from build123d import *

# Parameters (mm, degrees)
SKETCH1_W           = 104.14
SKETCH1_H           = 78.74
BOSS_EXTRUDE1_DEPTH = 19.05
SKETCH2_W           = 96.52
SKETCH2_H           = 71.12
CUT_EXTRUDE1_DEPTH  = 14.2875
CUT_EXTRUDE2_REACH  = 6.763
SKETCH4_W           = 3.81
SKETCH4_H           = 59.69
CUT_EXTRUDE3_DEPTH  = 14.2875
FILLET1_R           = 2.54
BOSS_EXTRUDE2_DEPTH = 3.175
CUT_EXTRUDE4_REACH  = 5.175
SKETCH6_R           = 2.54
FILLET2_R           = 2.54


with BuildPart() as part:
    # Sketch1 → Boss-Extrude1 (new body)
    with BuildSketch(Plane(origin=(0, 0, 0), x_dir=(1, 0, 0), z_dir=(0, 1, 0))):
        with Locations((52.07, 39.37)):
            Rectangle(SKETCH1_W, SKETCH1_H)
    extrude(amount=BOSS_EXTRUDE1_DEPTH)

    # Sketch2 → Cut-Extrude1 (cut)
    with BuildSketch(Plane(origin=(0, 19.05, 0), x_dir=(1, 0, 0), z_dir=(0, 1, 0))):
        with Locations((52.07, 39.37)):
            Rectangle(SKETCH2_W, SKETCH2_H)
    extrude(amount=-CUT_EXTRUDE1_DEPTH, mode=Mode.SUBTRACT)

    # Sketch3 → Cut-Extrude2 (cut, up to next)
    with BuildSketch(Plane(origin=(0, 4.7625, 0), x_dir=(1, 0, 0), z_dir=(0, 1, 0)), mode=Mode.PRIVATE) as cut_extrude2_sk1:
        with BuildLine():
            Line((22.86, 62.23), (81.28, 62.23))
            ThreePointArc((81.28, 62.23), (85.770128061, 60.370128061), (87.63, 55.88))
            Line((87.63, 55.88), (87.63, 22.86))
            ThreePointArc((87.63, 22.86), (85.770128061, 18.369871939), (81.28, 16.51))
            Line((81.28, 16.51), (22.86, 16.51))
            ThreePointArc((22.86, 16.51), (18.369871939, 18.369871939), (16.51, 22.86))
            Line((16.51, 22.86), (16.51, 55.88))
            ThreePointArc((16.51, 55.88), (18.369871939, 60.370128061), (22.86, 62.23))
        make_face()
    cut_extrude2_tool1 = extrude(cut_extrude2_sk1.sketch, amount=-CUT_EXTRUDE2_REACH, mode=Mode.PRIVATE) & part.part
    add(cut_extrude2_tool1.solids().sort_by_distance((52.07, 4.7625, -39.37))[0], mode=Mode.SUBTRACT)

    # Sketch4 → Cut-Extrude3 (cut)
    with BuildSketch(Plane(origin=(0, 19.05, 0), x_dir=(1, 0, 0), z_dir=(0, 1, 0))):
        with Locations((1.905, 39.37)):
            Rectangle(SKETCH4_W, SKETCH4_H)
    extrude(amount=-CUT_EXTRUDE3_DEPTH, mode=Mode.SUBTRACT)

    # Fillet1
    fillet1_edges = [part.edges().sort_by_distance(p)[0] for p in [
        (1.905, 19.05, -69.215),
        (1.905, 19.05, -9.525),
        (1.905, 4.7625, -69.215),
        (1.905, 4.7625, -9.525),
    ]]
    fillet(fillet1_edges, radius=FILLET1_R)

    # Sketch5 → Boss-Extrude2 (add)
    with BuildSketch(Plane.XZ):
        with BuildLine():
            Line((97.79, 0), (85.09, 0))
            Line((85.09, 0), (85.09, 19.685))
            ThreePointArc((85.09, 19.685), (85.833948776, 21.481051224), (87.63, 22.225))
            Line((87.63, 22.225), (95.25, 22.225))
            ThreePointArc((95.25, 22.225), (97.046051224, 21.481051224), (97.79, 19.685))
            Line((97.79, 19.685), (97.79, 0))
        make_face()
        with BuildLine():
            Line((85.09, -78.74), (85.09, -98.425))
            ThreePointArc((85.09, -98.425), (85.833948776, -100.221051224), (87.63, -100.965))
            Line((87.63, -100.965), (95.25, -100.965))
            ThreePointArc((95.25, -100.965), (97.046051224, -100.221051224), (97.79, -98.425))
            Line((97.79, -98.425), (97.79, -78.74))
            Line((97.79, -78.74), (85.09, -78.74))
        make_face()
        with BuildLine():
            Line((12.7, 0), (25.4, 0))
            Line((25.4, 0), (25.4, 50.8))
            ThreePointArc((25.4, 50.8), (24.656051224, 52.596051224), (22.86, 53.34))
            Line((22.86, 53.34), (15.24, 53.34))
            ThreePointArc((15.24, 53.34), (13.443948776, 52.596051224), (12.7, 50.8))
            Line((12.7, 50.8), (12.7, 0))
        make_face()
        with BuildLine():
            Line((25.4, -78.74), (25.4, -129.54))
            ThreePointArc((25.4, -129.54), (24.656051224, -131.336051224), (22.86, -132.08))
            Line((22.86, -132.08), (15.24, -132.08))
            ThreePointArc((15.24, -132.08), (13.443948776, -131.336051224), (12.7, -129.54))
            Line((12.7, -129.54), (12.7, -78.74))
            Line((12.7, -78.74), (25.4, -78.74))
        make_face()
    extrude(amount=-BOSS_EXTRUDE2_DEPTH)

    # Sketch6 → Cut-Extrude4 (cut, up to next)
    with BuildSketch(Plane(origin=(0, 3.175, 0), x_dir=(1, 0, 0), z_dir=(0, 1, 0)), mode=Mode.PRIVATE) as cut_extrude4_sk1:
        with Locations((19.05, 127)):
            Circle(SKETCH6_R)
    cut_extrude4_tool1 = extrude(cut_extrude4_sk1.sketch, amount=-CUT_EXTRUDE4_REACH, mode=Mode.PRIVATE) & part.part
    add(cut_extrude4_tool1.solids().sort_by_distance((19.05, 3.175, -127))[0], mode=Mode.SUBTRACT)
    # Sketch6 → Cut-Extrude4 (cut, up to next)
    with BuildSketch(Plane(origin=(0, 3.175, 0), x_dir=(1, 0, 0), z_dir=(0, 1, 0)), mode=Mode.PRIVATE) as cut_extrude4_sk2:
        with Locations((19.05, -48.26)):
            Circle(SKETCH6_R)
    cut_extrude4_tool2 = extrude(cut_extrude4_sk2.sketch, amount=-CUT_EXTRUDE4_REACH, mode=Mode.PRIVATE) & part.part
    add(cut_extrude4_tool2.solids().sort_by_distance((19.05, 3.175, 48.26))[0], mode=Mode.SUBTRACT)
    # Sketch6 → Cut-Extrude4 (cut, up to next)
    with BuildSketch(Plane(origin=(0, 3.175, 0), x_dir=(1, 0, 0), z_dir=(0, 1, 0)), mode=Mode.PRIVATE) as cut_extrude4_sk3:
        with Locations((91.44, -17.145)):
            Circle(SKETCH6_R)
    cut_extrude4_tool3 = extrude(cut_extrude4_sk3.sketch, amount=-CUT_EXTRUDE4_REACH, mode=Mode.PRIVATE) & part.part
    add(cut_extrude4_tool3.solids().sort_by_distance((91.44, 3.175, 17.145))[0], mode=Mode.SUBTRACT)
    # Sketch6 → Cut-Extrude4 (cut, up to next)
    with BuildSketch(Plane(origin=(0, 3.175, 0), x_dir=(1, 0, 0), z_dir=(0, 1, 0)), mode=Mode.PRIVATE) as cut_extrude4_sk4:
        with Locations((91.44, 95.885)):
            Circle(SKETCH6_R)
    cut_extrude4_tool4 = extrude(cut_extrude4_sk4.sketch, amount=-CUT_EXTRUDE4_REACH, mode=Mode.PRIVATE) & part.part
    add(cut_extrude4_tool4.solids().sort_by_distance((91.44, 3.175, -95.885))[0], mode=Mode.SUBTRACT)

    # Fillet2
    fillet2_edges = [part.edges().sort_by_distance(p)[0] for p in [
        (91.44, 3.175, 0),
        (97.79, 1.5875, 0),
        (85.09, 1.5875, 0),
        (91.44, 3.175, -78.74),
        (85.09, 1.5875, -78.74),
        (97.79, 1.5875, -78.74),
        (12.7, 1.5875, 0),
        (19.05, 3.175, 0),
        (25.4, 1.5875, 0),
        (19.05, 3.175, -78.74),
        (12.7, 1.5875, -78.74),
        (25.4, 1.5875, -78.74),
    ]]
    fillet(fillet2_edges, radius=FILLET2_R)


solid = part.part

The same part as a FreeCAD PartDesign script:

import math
import FreeCAD as App
import Part
import Sketcher

V = App.Vector
Q = App.Units.Quantity


def edges_at(feature, points):
    """Names of the edges that pass closest to the given points."""
    edges = feature.Shape.Edges
    near = lambda p: min(range(len(edges)), key=lambda i: edges[i].distToShape(Part.Vertex(*p))[0])
    return sorted({f"Edge{near(p) + 1}" for p in points})


def add_polygon(sketch, points):
    """Adds a closed chain of lines whose ends are joined by coincident constraints."""
    first, n = sketch.GeometryCount, len(points)
    for a, b in zip(points, points[1:] + points[:1]):
        sketch.addGeometry(Part.LineSegment(App.Vector(*a, 0), App.Vector(*b, 0)), False)
    for i in range(n):
        sketch.addConstraint(Sketcher.Constraint("Coincident", first + i, 2, first + (i + 1) % n, 1))

doc = App.newDocument("Part")
body = doc.addObject("PartDesign::Body", "Body")

sketch1 = body.newObject("Sketcher::SketchObject", "Sketch")
sketch1.AttachmentSupport = (doc.getObject("XZ_Plane"), [""])
sketch1.MapMode = "FlatFace"
add_polygon(sketch1, [(0, -78.74), (0, 0), (104.14, 0), (104.14, -78.74)])
sketch1.addConstraint(Sketcher.Constraint("Vertical", 0))
sketch1.addConstraint(Sketcher.Constraint("Horizontal", 1))
sketch1.addConstraint(Sketcher.Constraint("Vertical", 2))
sketch1.addConstraint(Sketcher.Constraint("Horizontal", 3))
sketch1.addConstraint(Sketcher.Constraint("Coincident", 0, 2, -1, 1))
sketch1.addConstraint(Sketcher.Constraint("DistanceX", 1, 1, 1, 2, Q("4.1 in")))
sketch1.addConstraint(Sketcher.Constraint("DistanceY", 0, 1, 0, 2, Q("3.1 in")))
pad1 = body.newObject("PartDesign::Pad", "Pad")
pad1.Profile = sketch1
pad1.Length = Q("0.75 in")
pad1.Reversed = True

sketch2 = body.newObject("Sketcher::SketchObject", "Sketch001")
sketch2.AttachmentSupport = (doc.getObject("XZ_Plane"), [""])
sketch2.MapMode = "FlatFace"
sketch2.AttachmentOffset = App.Placement(V(0, 0, -0.75 * 25.4), App.Rotation())
add_polygon(sketch2, [(3.81, -74.93), (3.81, -3.81), (100.33, -3.81), (100.33, -74.93)])
sketch2.addConstraint(Sketcher.Constraint("Vertical", 0))
sketch2.addConstraint(Sketcher.Constraint("Horizontal", 1))
sketch2.addConstraint(Sketcher.Constraint("Vertical", 2))
sketch2.addConstraint(Sketcher.Constraint("Horizontal", 3))
sketch2.addConstraint(Sketcher.Constraint("DistanceX", 1, 1, 1, 2, Q("3.8 in")))
sketch2.addConstraint(Sketcher.Constraint("DistanceY", 0, 1, 0, 2, Q("2.8 in")))
sketch2.addConstraint(Sketcher.Constraint("DistanceX", -1, 1, 0, 2, Q("0.15 in")))
sketch2.addConstraint(Sketcher.Constraint("DistanceY", 0, 2, -1, 1, Q("0.15 in")))
pocket1 = body.newObject("PartDesign::Pocket", "Pocket")
pocket1.Profile = sketch2
pocket1.Length = Q("0.5625 in")
pocket1.Reversed = True

sketch3 = body.newObject("Sketcher::SketchObject", "Sketch002")
sketch3.AttachmentSupport = (doc.getObject("XZ_Plane"), [""])
sketch3.MapMode = "FlatFace"
sketch3.AttachmentOffset = App.Placement(V(0, 0, -0.1875 * 25.4), App.Rotation())
sketch3.addGeometry(Part.LineSegment(V(81.28, -62.23, 0), V(22.86, -62.23, 0)), False)
sketch3.addGeometry(Part.ArcOfCircle(Part.Circle(V(22.86, -55.88, 0), V(0, 0, 1), 6.35), math.radians(180), math.radians(270)), False)
sketch3.addGeometry(Part.LineSegment(V(16.51, -55.88, 0), V(16.51, -22.86, 0)), False)
sketch3.addGeometry(Part.ArcOfCircle(Part.Circle(V(22.86, -22.86, 0), V(0, 0, 1), 6.35), math.radians(90), math.radians(180)), False)
sketch3.addGeometry(Part.LineSegment(V(22.86, -16.51, 0), V(81.28, -16.51, 0)), False)
sketch3.addGeometry(Part.ArcOfCircle(Part.Circle(V(81.28, -22.86, 0), V(0, 0, 1), 6.35), math.radians(0), math.radians(90)), False)
sketch3.addGeometry(Part.LineSegment(V(87.63, -22.86, 0), V(87.63, -55.88, 0)), False)
sketch3.addGeometry(Part.ArcOfCircle(Part.Circle(V(81.28, -55.88, 0), V(0, 0, 1), 6.35), math.radians(-90), math.radians(0)), False)
sketch3.addConstraint(Sketcher.Constraint("Tangent", 0, 2, 1, 2))
sketch3.addConstraint(Sketcher.Constraint("Tangent", 1, 1, 2, 1))
sketch3.addConstraint(Sketcher.Constraint("Tangent", 2, 2, 3, 2))
sketch3.addConstraint(Sketcher.Constraint("Tangent", 3, 1, 4, 1))
sketch3.addConstraint(Sketcher.Constraint("Tangent", 4, 2, 5, 2))
sketch3.addConstraint(Sketcher.Constraint("Tangent", 5, 1, 6, 1))
sketch3.addConstraint(Sketcher.Constraint("Tangent", 6, 2, 7, 2))
sketch3.addConstraint(Sketcher.Constraint("Tangent", 7, 1, 0, 1))
sketch3.addConstraint(Sketcher.Constraint("Horizontal", 0))
sketch3.addConstraint(Sketcher.Constraint("Vertical", 2))
sketch3.addConstraint(Sketcher.Constraint("Horizontal", 4))
sketch3.addConstraint(Sketcher.Constraint("Vertical", 6))
sketch3.addConstraint(Sketcher.Constraint("Equal", 1, 3))
sketch3.addConstraint(Sketcher.Constraint("Equal", 3, 5))
sketch3.addConstraint(Sketcher.Constraint("Equal", 5, 7))
sketch3.addConstraint(Sketcher.Constraint("Radius", 1, Q("0.25 in")))
sketch3.addConstraint(Sketcher.Constraint("DistanceX", 0, 2, 0, 1, Q("2.3 in")))
sketch3.addConstraint(Sketcher.Constraint("DistanceY", 2, 1, 2, 2, Q("1.3 in")))
sketch3.addConstraint(Sketcher.Constraint("DistanceX", -1, 1, 1, 3, Q("0.9 in")))
sketch3.addConstraint(Sketcher.Constraint("DistanceY", 1, 3, -1, 1, Q("2.2 in")))
pocket2 = body.newObject("PartDesign::Pocket", "Pocket001")
pocket2.Profile = sketch3
pocket2.Type = "UpToFirst"
pocket2.Reversed = True

sketch4 = body.newObject("Sketcher::SketchObject", "Sketch003")
sketch4.AttachmentSupport = (doc.getObject("XZ_Plane"), [""])
sketch4.MapMode = "FlatFace"
sketch4.AttachmentOffset = App.Placement(V(0, 0, -0.75 * 25.4), App.Rotation())
add_polygon(sketch4, [(0, -69.215), (0, -9.525), (3.81, -9.525), (3.81, -69.215)])
sketch4.addConstraint(Sketcher.Constraint("Vertical", 0))
sketch4.addConstraint(Sketcher.Constraint("Horizontal", 1))
sketch4.addConstraint(Sketcher.Constraint("Vertical", 2))
sketch4.addConstraint(Sketcher.Constraint("Horizontal", 3))
sketch4.addConstraint(Sketcher.Constraint("PointOnObject", 0, 2, -2))
sketch4.addConstraint(Sketcher.Constraint("DistanceX", 1, 1, 1, 2, Q("0.15 in")))
sketch4.addConstraint(Sketcher.Constraint("DistanceY", 0, 1, 0, 2, Q("2.35 in")))
sketch4.addConstraint(Sketcher.Constraint("DistanceY", 0, 2, -1, 1, Q("0.375 in")))
pocket3 = body.newObject("PartDesign::Pocket", "Pocket002")
pocket3.Profile = sketch4
pocket3.Length = Q("0.5625 in")
pocket3.Reversed = True
doc.recompute()

fillet = body.newObject("PartDesign::Fillet", "Fillet")
fillet.Base = (pocket3, edges_at(pocket3, [
    (1.905, 19.05, -69.215),
    (1.905, 19.05, -9.525),
    (1.905, 4.763, -69.215),
    (1.905, 4.763, -9.525),
]))
fillet.Radius = Q("0.1 in")

sketch5 = body.newObject("Sketcher::SketchObject", "Sketch004")
sketch5.AttachmentSupport = (doc.getObject("XZ_Plane"), [""])
sketch5.MapMode = "FlatFace"
sketch5.addGeometry(Part.LineSegment(V(85.09, 0, 0), V(97.79, 0, 0)), False)
sketch5.addGeometry(Part.LineSegment(V(97.79, 0, 0), V(97.79, 19.685, 0)), False)
sketch5.addGeometry(Part.ArcOfCircle(Part.Circle(V(95.25, 19.685, 0), V(0, 0, 1), 2.54), math.radians(0), math.radians(90)), False)
sketch5.addGeometry(Part.LineSegment(V(95.25, 22.225, 0), V(87.63, 22.225, 0)), False)
sketch5.addGeometry(Part.ArcOfCircle(Part.Circle(V(87.63, 19.685, 0), V(0, 0, 1), 2.54), math.radians(90), math.radians(180)), False)
sketch5.addGeometry(Part.LineSegment(V(85.09, 19.685, 0), V(85.09, 0, 0)), False)
sketch5.addGeometry(Part.LineSegment(V(85.09, -78.74, 0), V(85.09, -98.425, 0)), False)
sketch5.addGeometry(Part.ArcOfCircle(Part.Circle(V(87.63, -98.425, 0), V(0, 0, 1), 2.54), math.radians(-180), math.radians(-90)), False)
sketch5.addGeometry(Part.LineSegment(V(87.63, -100.965, 0), V(95.25, -100.965, 0)), False)
sketch5.addGeometry(Part.ArcOfCircle(Part.Circle(V(95.25, -98.425, 0), V(0, 0, 1), 2.54), math.radians(-90), math.radians(0)), False)
sketch5.addGeometry(Part.LineSegment(V(97.79, -98.425, 0), V(97.79, -78.74, 0)), False)
sketch5.addGeometry(Part.LineSegment(V(97.79, -78.74, 0), V(85.09, -78.74, 0)), False)
sketch5.addGeometry(Part.LineSegment(V(12.7, 0, 0), V(25.4, 0, 0)), False)
sketch5.addGeometry(Part.LineSegment(V(25.4, 0, 0), V(25.4, 50.8, 0)), False)
sketch5.addGeometry(Part.ArcOfCircle(Part.Circle(V(22.86, 50.8, 0), V(0, 0, 1), 2.54), math.radians(0), math.radians(90)), False)
sketch5.addGeometry(Part.LineSegment(V(22.86, 53.34, 0), V(15.24, 53.34, 0)), False)
sketch5.addGeometry(Part.ArcOfCircle(Part.Circle(V(15.24, 50.8, 0), V(0, 0, 1), 2.54), math.radians(90), math.radians(180)), False)
sketch5.addGeometry(Part.LineSegment(V(12.7, 50.8, 0), V(12.7, 0, 0)), False)
sketch5.addGeometry(Part.LineSegment(V(25.4, -129.54, 0), V(25.4, -78.74, 0)), False)
sketch5.addGeometry(Part.LineSegment(V(25.4, -78.74, 0), V(12.7, -78.74, 0)), False)
sketch5.addGeometry(Part.LineSegment(V(12.7, -78.74, 0), V(12.7, -129.54, 0)), False)
sketch5.addGeometry(Part.ArcOfCircle(Part.Circle(V(15.24, -129.54, 0), V(0, 0, 1), 2.54), math.radians(-180), math.radians(-90)), False)
sketch5.addGeometry(Part.LineSegment(V(15.24, -132.08, 0), V(22.86, -132.08, 0)), False)
sketch5.addGeometry(Part.ArcOfCircle(Part.Circle(V(22.86, -129.54, 0), V(0, 0, 1), 2.54), math.radians(-90), math.radians(0)), False)
sketch5.addConstraint(Sketcher.Constraint("Coincident", 0, 2, 1, 1))
sketch5.addConstraint(Sketcher.Constraint("Tangent", 1, 2, 2, 1))
sketch5.addConstraint(Sketcher.Constraint("Tangent", 2, 2, 3, 1))
sketch5.addConstraint(Sketcher.Constraint("Tangent", 3, 2, 4, 1))
sketch5.addConstraint(Sketcher.Constraint("Tangent", 4, 2, 5, 1))
sketch5.addConstraint(Sketcher.Constraint("Coincident", 5, 2, 0, 1))
sketch5.addConstraint(Sketcher.Constraint("Tangent", 6, 2, 7, 1))
sketch5.addConstraint(Sketcher.Constraint("Tangent", 7, 2, 8, 1))
sketch5.addConstraint(Sketcher.Constraint("Tangent", 8, 2, 9, 1))
sketch5.addConstraint(Sketcher.Constraint("Tangent", 9, 2, 10, 1))
sketch5.addConstraint(Sketcher.Constraint("Coincident", 10, 2, 11, 1))
sketch5.addConstraint(Sketcher.Constraint("Coincident", 11, 2, 6, 1))
sketch5.addConstraint(Sketcher.Constraint("Coincident", 12, 2, 13, 1))
sketch5.addConstraint(Sketcher.Constraint("Tangent", 13, 2, 14, 1))
sketch5.addConstraint(Sketcher.Constraint("Tangent", 14, 2, 15, 1))
sketch5.addConstraint(Sketcher.Constraint("Tangent", 15, 2, 16, 1))
sketch5.addConstraint(Sketcher.Constraint("Tangent", 16, 2, 17, 1))
sketch5.addConstraint(Sketcher.Constraint("Coincident", 17, 2, 12, 1))
sketch5.addConstraint(Sketcher.Constraint("Coincident", 18, 2, 19, 1))
sketch5.addConstraint(Sketcher.Constraint("Coincident", 19, 2, 20, 1))
sketch5.addConstraint(Sketcher.Constraint("Tangent", 20, 2, 21, 1))
sketch5.addConstraint(Sketcher.Constraint("Tangent", 21, 2, 22, 1))
sketch5.addConstraint(Sketcher.Constraint("Tangent", 22, 2, 23, 1))
sketch5.addConstraint(Sketcher.Constraint("Tangent", 23, 2, 18, 1))
sketch5.addConstraint(Sketcher.Constraint("Horizontal", 0))
sketch5.addConstraint(Sketcher.Constraint("Vertical", 1))
sketch5.addConstraint(Sketcher.Constraint("Horizontal", 3))
sketch5.addConstraint(Sketcher.Constraint("Vertical", 5))
sketch5.addConstraint(Sketcher.Constraint("Vertical", 6))
sketch5.addConstraint(Sketcher.Constraint("Horizontal", 8))
sketch5.addConstraint(Sketcher.Constraint("Vertical", 10))
sketch5.addConstraint(Sketcher.Constraint("Horizontal", 11))
sketch5.addConstraint(Sketcher.Constraint("Horizontal", 12))
sketch5.addConstraint(Sketcher.Constraint("Vertical", 13))
sketch5.addConstraint(Sketcher.Constraint("Horizontal", 15))
sketch5.addConstraint(Sketcher.Constraint("Vertical", 17))
sketch5.addConstraint(Sketcher.Constraint("Vertical", 18))
sketch5.addConstraint(Sketcher.Constraint("Horizontal", 19))
sketch5.addConstraint(Sketcher.Constraint("Vertical", 20))
sketch5.addConstraint(Sketcher.Constraint("Horizontal", 22))
sketch5.addConstraint(Sketcher.Constraint("Equal", 2, 4))
sketch5.addConstraint(Sketcher.Constraint("Equal", 4, 7))
sketch5.addConstraint(Sketcher.Constraint("Equal", 7, 9))
sketch5.addConstraint(Sketcher.Constraint("Equal", 9, 14))
sketch5.addConstraint(Sketcher.Constraint("Equal", 14, 16))
sketch5.addConstraint(Sketcher.Constraint("Equal", 16, 21))
sketch5.addConstraint(Sketcher.Constraint("Equal", 21, 23))
sketch5.addConstraint(Sketcher.Constraint("PointOnObject", 0, 2, -1))
sketch5.addConstraint(Sketcher.Constraint("PointOnObject", 12, 2, -1))
sketch5.addConstraint(Sketcher.Constraint("Horizontal", 11, 2, 18, 2))
sketch5.addConstraint(Sketcher.Constraint("Vertical", 4, 3, 7, 3))
sketch5.addConstraint(Sketcher.Constraint("Vertical", 2, 3, 9, 3))
sketch5.addConstraint(Sketcher.Constraint("Vertical", 16, 3, 21, 3))
sketch5.addConstraint(Sketcher.Constraint("Vertical", 14, 3, 23, 3))
sketch5.addConstraint(Sketcher.Constraint("Equal", 11, 12))
sketch5.addConstraint(Sketcher.Constraint("Equal", 5, 6))
sketch5.addConstraint(Sketcher.Constraint("Equal", 17, 18))
sketch5.addConstraint(Sketcher.Constraint("Radius", 2, Q("0.1 in")))
sketch5.addConstraint(Sketcher.Constraint("DistanceY", 13, 1, 13, 2, Q("2 in")))
sketch5.addConstraint(Sketcher.Constraint("DistanceX", 0, 1, 0, 2, Q("0.5 in")))
sketch5.addConstraint(Sketcher.Constraint("DistanceX", -1, 1, 12, 2, Q("1 in")))
sketch5.addConstraint(Sketcher.Constraint("DistanceY", 21, 3, -1, 1, Q("5.1 in")))
sketch5.addConstraint(Sketcher.Constraint("DistanceY", 1, 1, 1, 2, Q("0.775 in")))
sketch5.addConstraint(Sketcher.Constraint("DistanceX", -1, 1, 2, 3, Q("3.75 in")))
pad2 = body.newObject("PartDesign::Pad", "Pad001")
pad2.Profile = sketch5
pad2.Length = Q("0.125 in")
pad2.Reversed = True

sketch6 = body.newObject("Sketcher::SketchObject", "Sketch005")
sketch6.AttachmentSupport = (doc.getObject("XZ_Plane"), [""])
sketch6.MapMode = "FlatFace"
sketch6.AttachmentOffset = App.Placement(V(0, 0, -0.125 * 25.4), App.Rotation())
sketch6.addGeometry(Part.Circle(V(19.05, -127, 0), V(0, 0, 1), 2.54), False)
sketch6.addConstraint(Sketcher.Constraint("Diameter", 0, Q("0.2 in")))
sketch6.addConstraint(Sketcher.Constraint("DistanceY", 0, 3, -1, 1, Q("5 in")))
sketch6.addConstraint(Sketcher.Constraint("DistanceX", -1, 1, 0, 3, Q("0.75 in")))
pocket4 = body.newObject("PartDesign::Pocket", "Pocket003")
pocket4.Profile = sketch6
pocket4.Type = "UpToFirst"
pocket4.Reversed = True

sketch7 = body.newObject("Sketcher::SketchObject", "Sketch006")
sketch7.AttachmentSupport = (doc.getObject("XZ_Plane"), [""])
sketch7.MapMode = "FlatFace"
sketch7.AttachmentOffset = App.Placement(V(0, 0, -0.125 * 25.4), App.Rotation())
sketch7.addGeometry(Part.Circle(V(19.05, 48.26, 0), V(0, 0, 1), 2.54), False)
sketch7.addConstraint(Sketcher.Constraint("Diameter", 0, Q("0.2 in")))
sketch7.addConstraint(Sketcher.Constraint("DistanceY", -1, 1, 0, 3, Q("1.9 in")))
sketch7.addConstraint(Sketcher.Constraint("DistanceX", -1, 1, 0, 3, Q("0.75 in")))
pocket5 = body.newObject("PartDesign::Pocket", "Pocket004")
pocket5.Profile = sketch7
pocket5.Type = "UpToFirst"
pocket5.Reversed = True

sketch8 = body.newObject("Sketcher::SketchObject", "Sketch007")
sketch8.AttachmentSupport = (doc.getObject("XZ_Plane"), [""])
sketch8.MapMode = "FlatFace"
sketch8.AttachmentOffset = App.Placement(V(0, 0, -0.125 * 25.4), App.Rotation())
sketch8.addGeometry(Part.Circle(V(91.44, 17.145, 0), V(0, 0, 1), 2.54), False)
sketch8.addConstraint(Sketcher.Constraint("Diameter", 0, Q("0.2 in")))
sketch8.addConstraint(Sketcher.Constraint("DistanceX", -1, 1, 0, 3, Q("3.6 in")))
sketch8.addConstraint(Sketcher.Constraint("DistanceY", -1, 1, 0, 3, Q("0.675 in")))
pocket6 = body.newObject("PartDesign::Pocket", "Pocket005")
pocket6.Profile = sketch8
pocket6.Type = "UpToFirst"
pocket6.Reversed = True

sketch9 = body.newObject("Sketcher::SketchObject", "Sketch008")
sketch9.AttachmentSupport = (doc.getObject("XZ_Plane"), [""])
sketch9.MapMode = "FlatFace"
sketch9.AttachmentOffset = App.Placement(V(0, 0, -0.125 * 25.4), App.Rotation())
sketch9.addGeometry(Part.Circle(V(91.44, -95.885, 0), V(0, 0, 1), 2.54), False)
sketch9.addConstraint(Sketcher.Constraint("Diameter", 0, Q("0.2 in")))
sketch9.addConstraint(Sketcher.Constraint("DistanceX", -1, 1, 0, 3, Q("3.6 in")))
sketch9.addConstraint(Sketcher.Constraint("DistanceY", 0, 3, -1, 1, Q("3.775 in")))
pocket7 = body.newObject("PartDesign::Pocket", "Pocket006")
pocket7.Profile = sketch9
pocket7.Type = "UpToFirst"
pocket7.Reversed = True
doc.recompute()

fillet2 = body.newObject("PartDesign::Fillet", "Fillet001")
fillet2.Base = (pocket7, edges_at(pocket7, [
    (91.44, 3.175, 0),
    (97.79, 1.587, 0),
    (85.09, 1.587, 0),
    (91.44, 3.175, -78.74),
    (85.09, 1.587, -78.74),
    (97.79, 1.587, -78.74),
    (12.7, 1.587, 0),
    (19.05, 3.175, 0),
    (25.4, 1.587, 0),
    (19.05, 3.175, -78.74),
    (12.7, 1.587, -78.74),
    (25.4, 1.587, -78.74),
]))
fillet2.Radius = Q("0.1 in")

doc.recompute()
